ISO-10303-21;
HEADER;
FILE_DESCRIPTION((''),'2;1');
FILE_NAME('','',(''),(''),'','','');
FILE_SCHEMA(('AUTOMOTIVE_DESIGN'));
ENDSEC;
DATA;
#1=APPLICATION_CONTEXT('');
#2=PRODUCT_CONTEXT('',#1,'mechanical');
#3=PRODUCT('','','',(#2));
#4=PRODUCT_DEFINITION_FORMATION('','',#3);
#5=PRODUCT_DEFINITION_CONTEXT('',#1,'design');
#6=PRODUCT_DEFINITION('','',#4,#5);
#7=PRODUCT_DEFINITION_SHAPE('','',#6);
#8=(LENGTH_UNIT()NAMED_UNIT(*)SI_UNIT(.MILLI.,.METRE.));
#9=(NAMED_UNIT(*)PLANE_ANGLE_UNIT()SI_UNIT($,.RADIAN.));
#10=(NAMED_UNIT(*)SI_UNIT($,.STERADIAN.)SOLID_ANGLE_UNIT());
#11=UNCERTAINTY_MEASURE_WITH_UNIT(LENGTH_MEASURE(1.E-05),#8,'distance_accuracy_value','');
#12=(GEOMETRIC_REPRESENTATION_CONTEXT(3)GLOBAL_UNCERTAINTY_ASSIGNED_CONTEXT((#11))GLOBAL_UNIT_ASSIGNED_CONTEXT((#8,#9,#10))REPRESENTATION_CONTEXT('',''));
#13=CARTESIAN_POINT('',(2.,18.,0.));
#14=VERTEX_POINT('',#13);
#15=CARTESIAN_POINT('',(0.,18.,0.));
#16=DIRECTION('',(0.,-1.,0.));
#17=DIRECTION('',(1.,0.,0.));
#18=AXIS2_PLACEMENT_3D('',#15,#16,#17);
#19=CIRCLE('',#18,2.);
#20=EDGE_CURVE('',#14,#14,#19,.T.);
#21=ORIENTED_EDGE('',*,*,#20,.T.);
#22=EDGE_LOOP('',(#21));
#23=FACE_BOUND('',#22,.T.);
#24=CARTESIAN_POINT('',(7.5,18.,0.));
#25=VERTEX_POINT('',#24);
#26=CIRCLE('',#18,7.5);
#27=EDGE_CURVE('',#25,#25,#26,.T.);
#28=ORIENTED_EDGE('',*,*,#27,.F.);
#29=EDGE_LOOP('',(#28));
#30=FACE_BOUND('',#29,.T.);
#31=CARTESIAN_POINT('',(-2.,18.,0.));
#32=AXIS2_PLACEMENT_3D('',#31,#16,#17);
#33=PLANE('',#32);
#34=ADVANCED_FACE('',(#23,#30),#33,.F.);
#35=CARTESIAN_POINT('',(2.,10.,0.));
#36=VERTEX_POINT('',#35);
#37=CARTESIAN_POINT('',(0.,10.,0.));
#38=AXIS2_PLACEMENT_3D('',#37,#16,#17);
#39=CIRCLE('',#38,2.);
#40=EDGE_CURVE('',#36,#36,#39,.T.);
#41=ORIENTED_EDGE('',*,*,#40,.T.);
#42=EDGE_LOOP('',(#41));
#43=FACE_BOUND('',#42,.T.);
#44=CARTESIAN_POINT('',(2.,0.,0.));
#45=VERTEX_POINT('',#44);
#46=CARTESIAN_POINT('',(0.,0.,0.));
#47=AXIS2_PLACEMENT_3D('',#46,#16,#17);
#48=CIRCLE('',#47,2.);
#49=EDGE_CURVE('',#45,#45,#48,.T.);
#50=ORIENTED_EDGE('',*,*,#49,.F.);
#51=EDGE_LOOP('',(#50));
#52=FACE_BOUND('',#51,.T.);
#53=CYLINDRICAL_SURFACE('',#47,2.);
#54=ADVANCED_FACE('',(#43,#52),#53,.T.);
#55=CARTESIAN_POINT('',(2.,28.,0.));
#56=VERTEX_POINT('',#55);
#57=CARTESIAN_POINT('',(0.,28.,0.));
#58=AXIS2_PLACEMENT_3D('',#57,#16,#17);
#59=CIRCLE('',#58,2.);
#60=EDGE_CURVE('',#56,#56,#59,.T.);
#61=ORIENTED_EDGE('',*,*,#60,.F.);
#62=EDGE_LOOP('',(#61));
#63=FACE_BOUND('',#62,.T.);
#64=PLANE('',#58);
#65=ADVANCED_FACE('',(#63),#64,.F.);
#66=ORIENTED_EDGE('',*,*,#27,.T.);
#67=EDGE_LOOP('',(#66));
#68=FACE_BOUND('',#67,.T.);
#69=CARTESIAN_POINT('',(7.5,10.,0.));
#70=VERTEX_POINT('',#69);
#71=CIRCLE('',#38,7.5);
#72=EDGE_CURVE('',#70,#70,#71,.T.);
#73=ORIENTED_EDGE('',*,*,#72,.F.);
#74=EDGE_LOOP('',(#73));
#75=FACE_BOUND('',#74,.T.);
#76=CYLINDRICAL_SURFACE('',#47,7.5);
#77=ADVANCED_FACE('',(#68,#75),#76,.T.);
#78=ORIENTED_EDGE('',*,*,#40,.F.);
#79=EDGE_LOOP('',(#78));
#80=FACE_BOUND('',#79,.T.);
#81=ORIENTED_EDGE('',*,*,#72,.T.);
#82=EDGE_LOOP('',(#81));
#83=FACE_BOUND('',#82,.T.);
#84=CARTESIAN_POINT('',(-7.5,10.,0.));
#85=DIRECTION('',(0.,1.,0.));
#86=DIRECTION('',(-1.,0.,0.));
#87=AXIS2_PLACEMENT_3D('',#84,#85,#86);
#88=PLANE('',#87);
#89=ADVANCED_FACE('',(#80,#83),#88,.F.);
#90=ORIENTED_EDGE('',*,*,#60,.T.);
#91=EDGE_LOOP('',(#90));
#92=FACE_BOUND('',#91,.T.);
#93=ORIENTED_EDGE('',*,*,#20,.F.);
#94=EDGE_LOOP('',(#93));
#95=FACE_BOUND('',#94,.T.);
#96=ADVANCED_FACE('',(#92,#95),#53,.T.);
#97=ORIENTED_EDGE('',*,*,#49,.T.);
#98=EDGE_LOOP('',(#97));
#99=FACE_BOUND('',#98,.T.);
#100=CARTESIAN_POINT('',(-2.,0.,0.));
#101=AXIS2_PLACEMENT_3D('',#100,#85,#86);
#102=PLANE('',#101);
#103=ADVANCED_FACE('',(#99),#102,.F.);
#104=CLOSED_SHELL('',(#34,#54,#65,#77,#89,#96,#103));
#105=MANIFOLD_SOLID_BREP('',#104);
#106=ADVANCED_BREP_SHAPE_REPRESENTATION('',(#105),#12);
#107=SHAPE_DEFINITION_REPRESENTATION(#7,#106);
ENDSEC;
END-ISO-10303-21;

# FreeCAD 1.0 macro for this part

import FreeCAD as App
import Part
import Sketcher

V = App.Vector


def add_polygon(sketch, points):
    """Adds a closed chain of lines whose ends are joined by coincident constraints."""
    first, n = sketch.GeometryCount, len(points)
    for a, b in zip(points, points[1:] + points[:1]):
        sketch.addGeometry(Part.LineSegment(App.Vector(*a, 0), App.Vector(*b, 0)), False)
    for i in range(n):
        sketch.addConstraint(Sketcher.Constraint("Coincident", first + i, 2, first + (i + 1) % n, 1))

doc = App.newDocument("Part")
params = doc.addObject("Spreadsheet::Sheet", "Params")
for row, (alias, value) in enumerate([
    ("sketch1_width", "2 mm"),
    ("sketch1_height", "10 mm"),
    ("sketch1_height2", "8 mm"),
    ("sketch1_width2", "5.5 mm"),
    ("revolution_angle", "360 deg"),
], start=1):
    params.set(f"A{row}", alias)
    params.set(f"B{row}", "=" + value)
    params.setAlias(f"B{row}", alias)

body = doc.addObject("PartDesign::Body", "Body")

sketch1 = doc.addObject("Sketcher::SketchObject", "Sketch")
body.addObject(sketch1)
sketch1.AttachmentSupport = (doc.XY_Plane, [""])
sketch1.MapMode = "FlatFace"
add_polygon(sketch1, [(0, 28), (-2, 28), (-2, 18), (-7.5, 18), (-7.5, 10), (-2, 10), (-2, 0), (0, 0)])
sketch1.addConstraint([
    Sketcher.Constraint("Horizontal", 0),
    Sketcher.Constraint("Vertical", 1),
    Sketcher.Constraint("Horizontal", 2),
    Sketcher.Constraint("Vertical", 3),
    Sketcher.Constraint("Horizontal", 4),
    Sketcher.Constraint("Vertical", 5),
    Sketcher.Constraint("Horizontal", 6),
    Sketcher.Constraint("Vertical", 7),
    Sketcher.Constraint("Coincident", 6, 2, -1, 1),
    Sketcher.Constraint("Vertical", 1, 2, 4, 2),
    Sketcher.Constraint("Equal", 1, 5),
    Sketcher.Constraint("DistanceX", 0, 2, 0, 1, 2.0),
    Sketcher.Constraint("DistanceY", 1, 2, 1, 1, 10.0),
    Sketcher.Constraint("DistanceY", 3, 2, 3, 1, 8.0),
    Sketcher.Constraint("DistanceX", 2, 2, 2, 1, 5.5),
])
sketch1.setExpression("Constraints[19]", "Params.sketch1_width")
sketch1.setExpression("Constraints[20]", "Params.sketch1_height")
sketch1.setExpression("Constraints[21]", "Params.sketch1_height2")
sketch1.setExpression("Constraints[22]", "Params.sketch1_width2")
revolution = doc.addObject("PartDesign::Revolution", "Revolution")
body.addObject(revolution)
revolution.Profile = sketch1
revolution.ReferenceAxis = (sketch1, ["V_Axis"])
revolution.setExpression("Angle", "Params.revolution_angle")

doc.recompute()
